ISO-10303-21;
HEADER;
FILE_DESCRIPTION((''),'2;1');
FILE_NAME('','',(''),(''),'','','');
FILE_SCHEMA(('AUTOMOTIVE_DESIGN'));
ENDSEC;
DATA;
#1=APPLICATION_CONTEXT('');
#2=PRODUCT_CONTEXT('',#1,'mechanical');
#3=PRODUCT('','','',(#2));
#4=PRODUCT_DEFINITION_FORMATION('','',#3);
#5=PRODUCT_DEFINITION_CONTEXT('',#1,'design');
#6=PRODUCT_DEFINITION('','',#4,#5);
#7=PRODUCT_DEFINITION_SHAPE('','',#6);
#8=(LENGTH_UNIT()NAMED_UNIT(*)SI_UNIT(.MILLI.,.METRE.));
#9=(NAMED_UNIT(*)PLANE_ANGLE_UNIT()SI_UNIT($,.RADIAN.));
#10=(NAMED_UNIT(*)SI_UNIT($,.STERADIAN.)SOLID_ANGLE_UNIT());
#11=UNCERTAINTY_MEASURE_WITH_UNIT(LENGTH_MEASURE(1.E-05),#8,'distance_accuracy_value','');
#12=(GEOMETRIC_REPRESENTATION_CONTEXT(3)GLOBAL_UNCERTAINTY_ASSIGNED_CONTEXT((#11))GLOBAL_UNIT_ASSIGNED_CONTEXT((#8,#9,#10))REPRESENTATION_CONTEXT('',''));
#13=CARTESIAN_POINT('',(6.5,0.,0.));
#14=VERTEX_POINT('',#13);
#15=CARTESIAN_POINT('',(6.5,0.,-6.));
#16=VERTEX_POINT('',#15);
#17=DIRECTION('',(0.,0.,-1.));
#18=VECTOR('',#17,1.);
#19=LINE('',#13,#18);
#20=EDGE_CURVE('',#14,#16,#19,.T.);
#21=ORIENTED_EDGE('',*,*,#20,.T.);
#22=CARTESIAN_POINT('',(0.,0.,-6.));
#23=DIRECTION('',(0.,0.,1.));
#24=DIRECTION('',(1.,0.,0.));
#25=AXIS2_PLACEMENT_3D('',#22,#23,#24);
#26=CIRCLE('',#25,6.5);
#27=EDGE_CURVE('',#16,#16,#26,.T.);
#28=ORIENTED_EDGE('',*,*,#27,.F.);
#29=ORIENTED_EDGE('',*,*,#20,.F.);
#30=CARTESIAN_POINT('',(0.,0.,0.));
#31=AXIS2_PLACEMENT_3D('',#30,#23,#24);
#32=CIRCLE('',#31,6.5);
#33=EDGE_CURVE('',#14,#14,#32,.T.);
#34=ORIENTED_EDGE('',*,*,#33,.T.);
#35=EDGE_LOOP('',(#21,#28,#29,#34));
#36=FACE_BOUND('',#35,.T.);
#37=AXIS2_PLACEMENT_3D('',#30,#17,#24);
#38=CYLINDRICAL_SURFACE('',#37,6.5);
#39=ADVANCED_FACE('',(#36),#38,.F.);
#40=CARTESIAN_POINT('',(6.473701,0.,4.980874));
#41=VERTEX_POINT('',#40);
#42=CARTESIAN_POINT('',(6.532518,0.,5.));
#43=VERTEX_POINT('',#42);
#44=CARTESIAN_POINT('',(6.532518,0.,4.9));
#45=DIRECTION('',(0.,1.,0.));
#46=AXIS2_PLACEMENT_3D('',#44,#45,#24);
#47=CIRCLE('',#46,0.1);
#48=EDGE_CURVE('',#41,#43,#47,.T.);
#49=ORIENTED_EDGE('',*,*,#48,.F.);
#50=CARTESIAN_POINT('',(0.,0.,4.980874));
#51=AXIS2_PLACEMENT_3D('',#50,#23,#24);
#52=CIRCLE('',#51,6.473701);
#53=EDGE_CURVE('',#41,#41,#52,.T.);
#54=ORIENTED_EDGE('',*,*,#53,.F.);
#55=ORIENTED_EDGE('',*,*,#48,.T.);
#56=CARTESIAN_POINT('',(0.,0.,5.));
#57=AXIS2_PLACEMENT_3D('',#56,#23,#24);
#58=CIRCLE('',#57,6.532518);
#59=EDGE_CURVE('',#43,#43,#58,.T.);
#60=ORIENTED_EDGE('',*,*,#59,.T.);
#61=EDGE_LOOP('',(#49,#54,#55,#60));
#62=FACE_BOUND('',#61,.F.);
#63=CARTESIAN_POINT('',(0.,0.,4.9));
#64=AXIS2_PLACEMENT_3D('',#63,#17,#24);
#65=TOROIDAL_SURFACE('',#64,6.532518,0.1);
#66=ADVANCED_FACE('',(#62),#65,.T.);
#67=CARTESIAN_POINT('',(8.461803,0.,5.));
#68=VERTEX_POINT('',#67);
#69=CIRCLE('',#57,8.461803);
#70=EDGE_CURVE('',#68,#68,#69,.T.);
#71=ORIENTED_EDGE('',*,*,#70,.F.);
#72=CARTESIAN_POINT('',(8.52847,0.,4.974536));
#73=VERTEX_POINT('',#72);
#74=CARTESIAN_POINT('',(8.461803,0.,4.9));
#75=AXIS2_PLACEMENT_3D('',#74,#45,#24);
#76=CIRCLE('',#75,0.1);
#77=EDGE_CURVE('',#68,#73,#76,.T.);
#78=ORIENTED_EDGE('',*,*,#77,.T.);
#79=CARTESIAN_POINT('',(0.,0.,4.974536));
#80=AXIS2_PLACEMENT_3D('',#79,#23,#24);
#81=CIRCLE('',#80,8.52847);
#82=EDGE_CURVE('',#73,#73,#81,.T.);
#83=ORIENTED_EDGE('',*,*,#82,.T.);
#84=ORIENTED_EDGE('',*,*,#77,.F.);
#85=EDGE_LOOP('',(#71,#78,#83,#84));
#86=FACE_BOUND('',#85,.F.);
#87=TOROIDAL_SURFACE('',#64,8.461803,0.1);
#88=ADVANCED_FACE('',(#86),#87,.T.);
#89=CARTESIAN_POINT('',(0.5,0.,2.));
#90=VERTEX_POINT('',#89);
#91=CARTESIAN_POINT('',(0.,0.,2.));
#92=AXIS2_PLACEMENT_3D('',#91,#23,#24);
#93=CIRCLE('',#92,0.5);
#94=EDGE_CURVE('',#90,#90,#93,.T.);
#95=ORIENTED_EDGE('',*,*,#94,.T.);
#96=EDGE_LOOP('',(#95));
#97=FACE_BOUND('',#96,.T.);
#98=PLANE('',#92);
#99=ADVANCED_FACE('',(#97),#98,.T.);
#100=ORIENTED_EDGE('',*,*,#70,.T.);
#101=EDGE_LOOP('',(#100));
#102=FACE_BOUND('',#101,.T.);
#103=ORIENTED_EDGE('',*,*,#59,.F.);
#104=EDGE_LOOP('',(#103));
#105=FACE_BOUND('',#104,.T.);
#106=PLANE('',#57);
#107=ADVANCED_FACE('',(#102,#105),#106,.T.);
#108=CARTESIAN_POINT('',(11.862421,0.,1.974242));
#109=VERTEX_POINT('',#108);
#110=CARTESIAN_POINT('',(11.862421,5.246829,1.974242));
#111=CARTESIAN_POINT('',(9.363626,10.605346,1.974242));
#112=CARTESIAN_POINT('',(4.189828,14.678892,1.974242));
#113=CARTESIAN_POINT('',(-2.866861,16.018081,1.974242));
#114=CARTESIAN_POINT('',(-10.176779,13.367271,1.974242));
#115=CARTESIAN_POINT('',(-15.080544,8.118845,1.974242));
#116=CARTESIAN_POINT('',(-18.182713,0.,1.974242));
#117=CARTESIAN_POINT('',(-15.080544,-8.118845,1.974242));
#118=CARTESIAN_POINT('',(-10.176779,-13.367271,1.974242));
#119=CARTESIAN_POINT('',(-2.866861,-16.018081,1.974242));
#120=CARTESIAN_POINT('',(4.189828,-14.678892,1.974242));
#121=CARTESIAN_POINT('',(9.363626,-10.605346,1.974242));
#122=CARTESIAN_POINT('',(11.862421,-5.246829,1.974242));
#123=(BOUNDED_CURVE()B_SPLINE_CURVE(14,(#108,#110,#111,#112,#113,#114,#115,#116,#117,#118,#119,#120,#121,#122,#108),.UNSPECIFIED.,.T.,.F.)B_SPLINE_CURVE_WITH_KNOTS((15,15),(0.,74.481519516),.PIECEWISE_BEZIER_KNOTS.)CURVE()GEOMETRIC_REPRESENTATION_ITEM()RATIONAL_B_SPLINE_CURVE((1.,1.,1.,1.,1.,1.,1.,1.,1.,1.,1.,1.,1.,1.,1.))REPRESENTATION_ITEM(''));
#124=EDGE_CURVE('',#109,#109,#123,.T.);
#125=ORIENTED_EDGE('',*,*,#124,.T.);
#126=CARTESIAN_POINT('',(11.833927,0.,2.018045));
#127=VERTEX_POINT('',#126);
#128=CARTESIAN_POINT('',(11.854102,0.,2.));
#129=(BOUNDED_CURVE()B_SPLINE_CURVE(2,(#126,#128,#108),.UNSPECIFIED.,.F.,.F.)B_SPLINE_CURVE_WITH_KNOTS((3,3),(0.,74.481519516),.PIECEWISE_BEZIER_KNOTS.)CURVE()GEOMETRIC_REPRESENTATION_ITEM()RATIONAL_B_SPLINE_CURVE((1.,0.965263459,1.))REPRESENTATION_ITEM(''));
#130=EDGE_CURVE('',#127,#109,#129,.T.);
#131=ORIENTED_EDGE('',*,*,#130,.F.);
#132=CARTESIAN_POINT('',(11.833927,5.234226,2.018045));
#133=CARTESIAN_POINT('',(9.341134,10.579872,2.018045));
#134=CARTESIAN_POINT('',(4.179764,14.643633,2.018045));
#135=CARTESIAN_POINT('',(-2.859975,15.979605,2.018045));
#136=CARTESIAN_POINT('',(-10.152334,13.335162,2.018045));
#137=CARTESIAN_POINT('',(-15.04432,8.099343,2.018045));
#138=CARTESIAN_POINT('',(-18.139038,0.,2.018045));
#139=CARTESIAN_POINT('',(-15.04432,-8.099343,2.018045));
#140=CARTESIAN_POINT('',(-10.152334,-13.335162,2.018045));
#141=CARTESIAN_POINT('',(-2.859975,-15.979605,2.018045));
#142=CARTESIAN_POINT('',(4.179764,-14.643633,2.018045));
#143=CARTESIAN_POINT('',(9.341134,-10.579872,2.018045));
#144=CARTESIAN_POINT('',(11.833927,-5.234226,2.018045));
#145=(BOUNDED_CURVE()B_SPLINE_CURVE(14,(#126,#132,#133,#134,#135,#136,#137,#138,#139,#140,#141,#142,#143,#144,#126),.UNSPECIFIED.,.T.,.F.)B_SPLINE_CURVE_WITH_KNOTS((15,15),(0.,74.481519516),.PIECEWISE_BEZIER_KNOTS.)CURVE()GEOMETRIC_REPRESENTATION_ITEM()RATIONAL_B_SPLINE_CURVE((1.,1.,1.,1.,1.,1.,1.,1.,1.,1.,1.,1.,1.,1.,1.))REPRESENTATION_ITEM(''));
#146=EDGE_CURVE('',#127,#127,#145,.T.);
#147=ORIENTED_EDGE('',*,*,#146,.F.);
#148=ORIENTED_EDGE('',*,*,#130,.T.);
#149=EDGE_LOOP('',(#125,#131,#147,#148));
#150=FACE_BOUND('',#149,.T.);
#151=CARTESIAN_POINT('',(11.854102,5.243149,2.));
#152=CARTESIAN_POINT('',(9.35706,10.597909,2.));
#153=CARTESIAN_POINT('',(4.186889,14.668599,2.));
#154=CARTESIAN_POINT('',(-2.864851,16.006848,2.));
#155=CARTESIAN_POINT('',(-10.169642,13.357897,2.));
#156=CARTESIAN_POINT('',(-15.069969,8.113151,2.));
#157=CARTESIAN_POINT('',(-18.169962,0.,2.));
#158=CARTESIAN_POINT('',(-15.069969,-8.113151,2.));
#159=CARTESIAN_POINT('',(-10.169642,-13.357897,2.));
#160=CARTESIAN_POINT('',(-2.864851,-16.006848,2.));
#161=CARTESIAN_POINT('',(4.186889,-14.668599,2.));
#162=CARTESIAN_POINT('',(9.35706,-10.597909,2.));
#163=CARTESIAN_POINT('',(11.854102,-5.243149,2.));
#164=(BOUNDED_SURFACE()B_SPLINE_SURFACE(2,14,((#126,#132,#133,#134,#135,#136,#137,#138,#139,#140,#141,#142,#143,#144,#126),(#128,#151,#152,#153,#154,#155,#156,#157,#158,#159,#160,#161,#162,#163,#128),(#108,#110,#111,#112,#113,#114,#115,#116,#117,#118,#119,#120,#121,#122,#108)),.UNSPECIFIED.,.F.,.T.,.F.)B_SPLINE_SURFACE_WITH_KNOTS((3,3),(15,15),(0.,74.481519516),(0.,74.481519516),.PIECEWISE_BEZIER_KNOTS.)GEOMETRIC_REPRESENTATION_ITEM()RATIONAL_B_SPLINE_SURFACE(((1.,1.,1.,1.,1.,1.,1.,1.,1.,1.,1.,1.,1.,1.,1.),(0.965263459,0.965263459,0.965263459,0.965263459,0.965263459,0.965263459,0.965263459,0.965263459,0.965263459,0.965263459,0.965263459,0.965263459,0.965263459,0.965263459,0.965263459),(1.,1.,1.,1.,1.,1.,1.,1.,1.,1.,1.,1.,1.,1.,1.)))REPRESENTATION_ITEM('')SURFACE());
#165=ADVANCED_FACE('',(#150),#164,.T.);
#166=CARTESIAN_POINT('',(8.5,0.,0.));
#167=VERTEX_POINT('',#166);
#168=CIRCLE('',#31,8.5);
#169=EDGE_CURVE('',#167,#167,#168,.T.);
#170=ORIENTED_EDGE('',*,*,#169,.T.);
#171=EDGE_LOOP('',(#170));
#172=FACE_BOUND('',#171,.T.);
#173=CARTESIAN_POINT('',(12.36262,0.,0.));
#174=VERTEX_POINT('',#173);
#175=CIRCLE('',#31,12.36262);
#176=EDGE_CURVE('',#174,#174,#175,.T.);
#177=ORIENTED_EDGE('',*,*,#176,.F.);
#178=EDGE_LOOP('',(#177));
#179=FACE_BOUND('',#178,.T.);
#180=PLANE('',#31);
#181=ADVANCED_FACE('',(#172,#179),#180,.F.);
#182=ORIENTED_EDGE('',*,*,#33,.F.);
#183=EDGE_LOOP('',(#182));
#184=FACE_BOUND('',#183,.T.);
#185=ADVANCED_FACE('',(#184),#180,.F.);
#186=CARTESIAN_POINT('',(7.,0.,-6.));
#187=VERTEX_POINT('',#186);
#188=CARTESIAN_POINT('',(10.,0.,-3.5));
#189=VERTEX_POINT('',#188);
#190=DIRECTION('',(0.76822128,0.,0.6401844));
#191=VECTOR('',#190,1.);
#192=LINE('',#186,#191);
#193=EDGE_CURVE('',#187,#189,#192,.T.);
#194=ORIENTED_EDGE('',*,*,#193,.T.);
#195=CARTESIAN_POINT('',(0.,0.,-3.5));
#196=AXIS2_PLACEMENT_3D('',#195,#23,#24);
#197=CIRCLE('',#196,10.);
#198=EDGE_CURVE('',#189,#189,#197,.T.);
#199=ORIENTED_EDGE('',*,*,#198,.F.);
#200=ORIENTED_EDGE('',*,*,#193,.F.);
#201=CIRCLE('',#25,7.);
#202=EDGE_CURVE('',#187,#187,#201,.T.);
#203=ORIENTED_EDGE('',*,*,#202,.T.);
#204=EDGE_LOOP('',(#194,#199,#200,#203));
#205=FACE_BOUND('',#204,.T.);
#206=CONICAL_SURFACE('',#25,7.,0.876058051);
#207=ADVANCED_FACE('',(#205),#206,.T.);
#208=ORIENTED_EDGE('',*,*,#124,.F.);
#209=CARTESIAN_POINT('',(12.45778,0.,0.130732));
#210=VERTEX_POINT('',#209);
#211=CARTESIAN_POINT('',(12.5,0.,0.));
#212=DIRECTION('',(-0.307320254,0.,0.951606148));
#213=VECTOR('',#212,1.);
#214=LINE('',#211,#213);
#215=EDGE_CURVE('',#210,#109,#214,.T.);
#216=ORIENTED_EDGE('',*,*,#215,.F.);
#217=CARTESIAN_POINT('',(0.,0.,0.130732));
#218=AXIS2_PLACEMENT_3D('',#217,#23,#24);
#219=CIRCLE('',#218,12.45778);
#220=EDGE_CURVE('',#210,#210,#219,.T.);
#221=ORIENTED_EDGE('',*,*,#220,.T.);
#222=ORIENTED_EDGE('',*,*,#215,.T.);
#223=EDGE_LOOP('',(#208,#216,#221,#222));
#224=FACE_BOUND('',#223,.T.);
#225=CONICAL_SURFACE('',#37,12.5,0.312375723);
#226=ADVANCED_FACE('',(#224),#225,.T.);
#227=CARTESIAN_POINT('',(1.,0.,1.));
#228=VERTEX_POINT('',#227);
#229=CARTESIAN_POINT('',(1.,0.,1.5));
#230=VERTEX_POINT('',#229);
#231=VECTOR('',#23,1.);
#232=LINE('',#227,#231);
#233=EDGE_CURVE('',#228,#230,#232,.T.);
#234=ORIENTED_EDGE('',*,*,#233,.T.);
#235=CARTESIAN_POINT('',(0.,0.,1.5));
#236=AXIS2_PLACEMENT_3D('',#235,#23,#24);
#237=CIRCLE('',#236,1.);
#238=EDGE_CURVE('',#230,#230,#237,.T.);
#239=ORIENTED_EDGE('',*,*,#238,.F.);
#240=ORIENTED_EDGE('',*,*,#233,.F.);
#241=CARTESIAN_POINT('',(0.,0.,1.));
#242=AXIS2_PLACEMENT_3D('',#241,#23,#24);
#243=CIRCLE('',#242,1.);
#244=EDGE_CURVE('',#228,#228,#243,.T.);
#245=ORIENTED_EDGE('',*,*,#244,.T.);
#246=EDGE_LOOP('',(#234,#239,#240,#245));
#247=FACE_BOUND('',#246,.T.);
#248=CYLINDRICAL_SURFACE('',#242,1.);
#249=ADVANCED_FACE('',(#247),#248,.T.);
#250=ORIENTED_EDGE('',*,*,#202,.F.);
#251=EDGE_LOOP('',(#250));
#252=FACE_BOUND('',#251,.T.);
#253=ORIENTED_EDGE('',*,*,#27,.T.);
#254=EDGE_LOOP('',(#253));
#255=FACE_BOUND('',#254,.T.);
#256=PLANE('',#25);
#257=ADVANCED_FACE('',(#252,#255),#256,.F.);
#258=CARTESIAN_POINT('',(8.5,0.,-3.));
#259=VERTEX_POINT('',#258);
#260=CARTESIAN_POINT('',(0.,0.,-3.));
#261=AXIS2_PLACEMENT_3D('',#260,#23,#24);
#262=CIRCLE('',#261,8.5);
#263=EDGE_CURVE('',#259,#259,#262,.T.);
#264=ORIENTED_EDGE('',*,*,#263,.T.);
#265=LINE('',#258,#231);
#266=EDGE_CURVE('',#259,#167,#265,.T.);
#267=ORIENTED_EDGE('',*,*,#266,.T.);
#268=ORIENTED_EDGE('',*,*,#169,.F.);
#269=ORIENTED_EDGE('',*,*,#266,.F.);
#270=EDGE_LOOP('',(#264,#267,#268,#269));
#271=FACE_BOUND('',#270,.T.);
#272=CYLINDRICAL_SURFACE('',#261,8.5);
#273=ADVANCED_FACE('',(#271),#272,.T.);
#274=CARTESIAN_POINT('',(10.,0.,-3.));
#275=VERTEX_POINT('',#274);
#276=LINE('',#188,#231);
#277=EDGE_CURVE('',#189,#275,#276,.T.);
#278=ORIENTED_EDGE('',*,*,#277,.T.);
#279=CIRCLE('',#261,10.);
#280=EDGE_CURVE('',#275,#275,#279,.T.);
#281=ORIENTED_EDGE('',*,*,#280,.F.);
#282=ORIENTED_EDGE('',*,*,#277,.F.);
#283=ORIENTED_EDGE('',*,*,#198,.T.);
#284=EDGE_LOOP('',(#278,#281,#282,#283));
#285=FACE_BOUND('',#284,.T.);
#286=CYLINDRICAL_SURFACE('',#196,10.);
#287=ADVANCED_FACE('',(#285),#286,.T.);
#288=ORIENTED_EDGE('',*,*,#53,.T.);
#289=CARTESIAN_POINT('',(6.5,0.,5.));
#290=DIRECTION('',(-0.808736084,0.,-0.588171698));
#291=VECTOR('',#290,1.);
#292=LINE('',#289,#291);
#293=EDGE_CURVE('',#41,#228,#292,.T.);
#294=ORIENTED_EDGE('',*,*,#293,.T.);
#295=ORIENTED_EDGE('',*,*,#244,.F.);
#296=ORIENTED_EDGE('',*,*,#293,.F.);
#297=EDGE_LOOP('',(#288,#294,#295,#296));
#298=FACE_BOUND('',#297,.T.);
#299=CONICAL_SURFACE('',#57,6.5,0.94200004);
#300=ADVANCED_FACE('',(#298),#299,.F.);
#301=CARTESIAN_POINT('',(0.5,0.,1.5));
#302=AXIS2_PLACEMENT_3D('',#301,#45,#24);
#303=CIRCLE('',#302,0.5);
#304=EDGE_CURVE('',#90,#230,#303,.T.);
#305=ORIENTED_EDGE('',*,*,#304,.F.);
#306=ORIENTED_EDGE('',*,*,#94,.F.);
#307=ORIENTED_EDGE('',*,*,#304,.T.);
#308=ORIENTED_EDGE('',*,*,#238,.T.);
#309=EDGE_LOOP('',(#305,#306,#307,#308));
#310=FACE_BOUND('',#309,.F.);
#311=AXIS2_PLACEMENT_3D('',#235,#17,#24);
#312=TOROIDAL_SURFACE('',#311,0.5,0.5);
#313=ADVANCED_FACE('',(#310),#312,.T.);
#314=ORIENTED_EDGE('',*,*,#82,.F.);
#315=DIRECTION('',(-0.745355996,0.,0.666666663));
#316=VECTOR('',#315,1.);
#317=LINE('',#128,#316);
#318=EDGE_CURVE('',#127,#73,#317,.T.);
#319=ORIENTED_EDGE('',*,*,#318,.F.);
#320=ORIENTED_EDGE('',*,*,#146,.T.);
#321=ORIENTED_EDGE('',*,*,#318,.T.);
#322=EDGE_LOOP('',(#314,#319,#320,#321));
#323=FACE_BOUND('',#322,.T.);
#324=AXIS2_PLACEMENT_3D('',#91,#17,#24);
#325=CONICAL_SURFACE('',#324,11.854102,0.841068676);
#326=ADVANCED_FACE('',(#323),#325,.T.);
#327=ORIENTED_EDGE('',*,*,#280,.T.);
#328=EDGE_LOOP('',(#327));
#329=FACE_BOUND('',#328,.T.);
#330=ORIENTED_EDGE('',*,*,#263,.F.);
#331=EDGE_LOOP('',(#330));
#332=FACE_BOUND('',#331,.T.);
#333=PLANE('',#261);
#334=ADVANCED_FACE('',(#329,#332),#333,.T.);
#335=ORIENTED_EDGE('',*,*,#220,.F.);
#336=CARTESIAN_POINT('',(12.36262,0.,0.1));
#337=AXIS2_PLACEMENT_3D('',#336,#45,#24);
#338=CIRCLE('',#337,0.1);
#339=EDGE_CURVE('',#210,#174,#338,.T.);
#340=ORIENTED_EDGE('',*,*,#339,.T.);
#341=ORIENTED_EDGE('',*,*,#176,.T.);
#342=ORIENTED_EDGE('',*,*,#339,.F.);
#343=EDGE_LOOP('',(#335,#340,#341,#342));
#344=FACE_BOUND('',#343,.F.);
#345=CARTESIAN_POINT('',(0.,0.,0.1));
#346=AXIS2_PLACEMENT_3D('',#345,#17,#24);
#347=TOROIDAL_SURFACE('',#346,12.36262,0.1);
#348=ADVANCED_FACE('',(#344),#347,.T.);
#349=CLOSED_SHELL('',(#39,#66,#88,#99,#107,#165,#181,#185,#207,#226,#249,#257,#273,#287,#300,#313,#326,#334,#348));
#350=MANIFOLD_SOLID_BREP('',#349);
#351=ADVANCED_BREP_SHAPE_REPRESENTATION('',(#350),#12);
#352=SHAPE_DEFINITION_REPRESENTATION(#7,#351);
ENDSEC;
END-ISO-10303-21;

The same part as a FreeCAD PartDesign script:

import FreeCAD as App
import Part
import Sketcher
from FreeCAD import Vector


def edges_at(feature, points):
    """Names of the edges that pass closest to the given points."""
    edges = feature.Shape.Edges
    near = lambda p: min(range(len(edges)), key=lambda i: edges[i].distToShape(Part.Vertex(*p))[0])
    return sorted({f"Edge{near(p) + 1}" for p in points})


def add_polygon(sketch, points):
    """Adds a closed chain of lines whose ends are joined by coincident constraints."""
    first, n = sketch.GeometryCount, len(points)
    for a, b in zip(points, points[1:] + points[:1]):
        sketch.addGeometry(Part.LineSegment(App.Vector(*a, 0), App.Vector(*b, 0)), False)
    for i in range(n):
        sketch.addConstraint(Sketcher.Constraint("Coincident", first + i, 2, first + (i + 1) % n, 1))

doc = App.newDocument("Part")
params = doc.addObject("Spreadsheet::Sheet", "Params")
for row, (alias, value) in enumerate([
    ("sketch1_width", "1 mm"),
    ("sketch1_width2", "4 mm"),
    ("sketch1_width3", "2 mm"),
    ("sketch1_height", "6 mm"),
    ("sketch1_height2", "3 mm"),
    ("revolution_angle", "360 deg"),
    ("fillet_radius", "0.5 mm"),
    ("fillet2_radius", "0.1 mm"),
], start=1):
    params.set(f"A{row}", alias)
    params.set(f"B{row}", "=" + value)
    params.setAlias(f"B{row}", alias)

body = doc.addObject("PartDesign::Body", "Body")

sketch1 = doc.addObject("Sketcher::SketchObject", "Sketch")
body.addObject(sketch1)
sketch1.AttachmentSupport = (doc.XZ_Plane, [""])
sketch1.MapMode = "FlatFace"
add_polygon(sketch1, [(1, 2), (0, 2), (0, 0), (6.5, 0), (6.5, -6), (7, -6), (10, -3.5), (10, -3), (8.5, -3), (8.5, 0), (12.5, 0), (11.9, 2), (8.5, 5), (6.5, 5), (1, 1)])
sketch1.addConstraint(Sketcher.Constraint("Horizontal", 0))
sketch1.addConstraint(Sketcher.Constraint("Vertical", 1))
sketch1.addConstraint(Sketcher.Constraint("Horizontal", 2))
sketch1.addConstraint(Sketcher.Constraint("Vertical", 3))
sketch1.addConstraint(Sketcher.Constraint("Horizontal", 4))
sketch1.addConstraint(Sketcher.Constraint("Vertical", 6))
sketch1.addConstraint(Sketcher.Constraint("Horizontal", 7))
sketch1.addConstraint(Sketcher.Constraint("Vertical", 8))
sketch1.addConstraint(Sketcher.Constraint("Horizontal", 9))
sketch1.addConstraint(Sketcher.Constraint("Horizontal", 12))
sketch1.addConstraint(Sketcher.Constraint("Vertical", 14))
sketch1.addConstraint(Sketcher.Constraint("Coincident", 1, 2, -1, 1))
sketch1.addConstraint(Sketcher.Constraint("PointOnObject", 8, 2, -1))
sketch1.addConstraint(Sketcher.Constraint("Horizontal", 0, 2, 10, 2))
sketch1.addConstraint(Sketcher.Constraint("Vertical", 8, 2, 11, 2))
sketch1.addConstraint(Sketcher.Constraint("Vertical", 3, 2, 12, 2))
sketch1.addConstraint(Sketcher.Constraint("Equal", 12, 1))
sketch1.addConstraint(Sketcher.Constraint("Equal", 4, 6))
sketch1.addConstraint(Sketcher.Constraint("Equal", 0, 14))
sketch1.addConstraint(Sketcher.Constraint("DistanceX", 0, 2, 0, 1, 1.0))
sketch1.addConstraint(Sketcher.Constraint("DistanceX", 9, 1, 9, 2, 4.0))
sketch1.addConstraint(Sketcher.Constraint("DistanceX", 12, 2, 12, 1, 2.0))
sketch1.addConstraint(Sketcher.Constraint("DistanceY", 3, 2, 3, 1, 6.0))
sketch1.addConstraint(Sketcher.Constraint("DistanceY", 8, 1, 8, 2, 3.0))
sketch1.addConstraint(Sketcher.Constraint("DistanceX", 2, 1, 2, 2, 6.5))
sketch1.addConstraint(Sketcher.Constraint("DistanceX", 4, 1, 4, 2, 0.5))
sketch1.addConstraint(Sketcher.Constraint("DistanceX", 7, 2, 7, 1, 1.5))
sketch1.addConstraint(Sketcher.Constraint("DistanceY", -1, 1, 11, 2, 5.0))
sketch1.addConstraint(Sketcher.Constraint("Distance", 11, 4.5))
sketch1.setExpression("Constraints[34]", "Params.sketch1_width")
sketch1.setExpression("Constraints[35]", "Params.sketch1_width2")
sketch1.setExpression("Constraints[36]", "Params.sketch1_width3")
sketch1.setExpression("Constraints[37]", "Params.sketch1_height")
sketch1.setExpression("Constraints[38]", "Params.sketch1_height2")
revolution = doc.addObject("PartDesign::Revolution", "Revolution")
body.addObject(revolution)
revolution.Profile = sketch1
revolution.ReferenceAxis = (sketch1, ["V_Axis"])
revolution.setExpression("Angle", "Params.revolution_angle")
doc.recompute()

fillet = doc.addObject("PartDesign::Fillet", "Fillet")
body.addObject(fillet)
fillet.Base = (revolution, edges_at(revolution, [(-1, 0, 2)]))
fillet.setExpression("Radius", "Params.fillet_radius")
doc.recompute()

fillet2 = doc.addObject("PartDesign::Fillet", "Fillet001")
body.addObject(fillet2)
fillet2.Base = (fillet, edges_at(fillet, [
    (-6.5, 0, 5),
    (-8.5, 0, 5),
    (-11.854, 0, 2),
    (-12.5, 0, 0),
]))
fillet2.setExpression("Radius", "Params.fillet2_radius")

doc.recompute()
